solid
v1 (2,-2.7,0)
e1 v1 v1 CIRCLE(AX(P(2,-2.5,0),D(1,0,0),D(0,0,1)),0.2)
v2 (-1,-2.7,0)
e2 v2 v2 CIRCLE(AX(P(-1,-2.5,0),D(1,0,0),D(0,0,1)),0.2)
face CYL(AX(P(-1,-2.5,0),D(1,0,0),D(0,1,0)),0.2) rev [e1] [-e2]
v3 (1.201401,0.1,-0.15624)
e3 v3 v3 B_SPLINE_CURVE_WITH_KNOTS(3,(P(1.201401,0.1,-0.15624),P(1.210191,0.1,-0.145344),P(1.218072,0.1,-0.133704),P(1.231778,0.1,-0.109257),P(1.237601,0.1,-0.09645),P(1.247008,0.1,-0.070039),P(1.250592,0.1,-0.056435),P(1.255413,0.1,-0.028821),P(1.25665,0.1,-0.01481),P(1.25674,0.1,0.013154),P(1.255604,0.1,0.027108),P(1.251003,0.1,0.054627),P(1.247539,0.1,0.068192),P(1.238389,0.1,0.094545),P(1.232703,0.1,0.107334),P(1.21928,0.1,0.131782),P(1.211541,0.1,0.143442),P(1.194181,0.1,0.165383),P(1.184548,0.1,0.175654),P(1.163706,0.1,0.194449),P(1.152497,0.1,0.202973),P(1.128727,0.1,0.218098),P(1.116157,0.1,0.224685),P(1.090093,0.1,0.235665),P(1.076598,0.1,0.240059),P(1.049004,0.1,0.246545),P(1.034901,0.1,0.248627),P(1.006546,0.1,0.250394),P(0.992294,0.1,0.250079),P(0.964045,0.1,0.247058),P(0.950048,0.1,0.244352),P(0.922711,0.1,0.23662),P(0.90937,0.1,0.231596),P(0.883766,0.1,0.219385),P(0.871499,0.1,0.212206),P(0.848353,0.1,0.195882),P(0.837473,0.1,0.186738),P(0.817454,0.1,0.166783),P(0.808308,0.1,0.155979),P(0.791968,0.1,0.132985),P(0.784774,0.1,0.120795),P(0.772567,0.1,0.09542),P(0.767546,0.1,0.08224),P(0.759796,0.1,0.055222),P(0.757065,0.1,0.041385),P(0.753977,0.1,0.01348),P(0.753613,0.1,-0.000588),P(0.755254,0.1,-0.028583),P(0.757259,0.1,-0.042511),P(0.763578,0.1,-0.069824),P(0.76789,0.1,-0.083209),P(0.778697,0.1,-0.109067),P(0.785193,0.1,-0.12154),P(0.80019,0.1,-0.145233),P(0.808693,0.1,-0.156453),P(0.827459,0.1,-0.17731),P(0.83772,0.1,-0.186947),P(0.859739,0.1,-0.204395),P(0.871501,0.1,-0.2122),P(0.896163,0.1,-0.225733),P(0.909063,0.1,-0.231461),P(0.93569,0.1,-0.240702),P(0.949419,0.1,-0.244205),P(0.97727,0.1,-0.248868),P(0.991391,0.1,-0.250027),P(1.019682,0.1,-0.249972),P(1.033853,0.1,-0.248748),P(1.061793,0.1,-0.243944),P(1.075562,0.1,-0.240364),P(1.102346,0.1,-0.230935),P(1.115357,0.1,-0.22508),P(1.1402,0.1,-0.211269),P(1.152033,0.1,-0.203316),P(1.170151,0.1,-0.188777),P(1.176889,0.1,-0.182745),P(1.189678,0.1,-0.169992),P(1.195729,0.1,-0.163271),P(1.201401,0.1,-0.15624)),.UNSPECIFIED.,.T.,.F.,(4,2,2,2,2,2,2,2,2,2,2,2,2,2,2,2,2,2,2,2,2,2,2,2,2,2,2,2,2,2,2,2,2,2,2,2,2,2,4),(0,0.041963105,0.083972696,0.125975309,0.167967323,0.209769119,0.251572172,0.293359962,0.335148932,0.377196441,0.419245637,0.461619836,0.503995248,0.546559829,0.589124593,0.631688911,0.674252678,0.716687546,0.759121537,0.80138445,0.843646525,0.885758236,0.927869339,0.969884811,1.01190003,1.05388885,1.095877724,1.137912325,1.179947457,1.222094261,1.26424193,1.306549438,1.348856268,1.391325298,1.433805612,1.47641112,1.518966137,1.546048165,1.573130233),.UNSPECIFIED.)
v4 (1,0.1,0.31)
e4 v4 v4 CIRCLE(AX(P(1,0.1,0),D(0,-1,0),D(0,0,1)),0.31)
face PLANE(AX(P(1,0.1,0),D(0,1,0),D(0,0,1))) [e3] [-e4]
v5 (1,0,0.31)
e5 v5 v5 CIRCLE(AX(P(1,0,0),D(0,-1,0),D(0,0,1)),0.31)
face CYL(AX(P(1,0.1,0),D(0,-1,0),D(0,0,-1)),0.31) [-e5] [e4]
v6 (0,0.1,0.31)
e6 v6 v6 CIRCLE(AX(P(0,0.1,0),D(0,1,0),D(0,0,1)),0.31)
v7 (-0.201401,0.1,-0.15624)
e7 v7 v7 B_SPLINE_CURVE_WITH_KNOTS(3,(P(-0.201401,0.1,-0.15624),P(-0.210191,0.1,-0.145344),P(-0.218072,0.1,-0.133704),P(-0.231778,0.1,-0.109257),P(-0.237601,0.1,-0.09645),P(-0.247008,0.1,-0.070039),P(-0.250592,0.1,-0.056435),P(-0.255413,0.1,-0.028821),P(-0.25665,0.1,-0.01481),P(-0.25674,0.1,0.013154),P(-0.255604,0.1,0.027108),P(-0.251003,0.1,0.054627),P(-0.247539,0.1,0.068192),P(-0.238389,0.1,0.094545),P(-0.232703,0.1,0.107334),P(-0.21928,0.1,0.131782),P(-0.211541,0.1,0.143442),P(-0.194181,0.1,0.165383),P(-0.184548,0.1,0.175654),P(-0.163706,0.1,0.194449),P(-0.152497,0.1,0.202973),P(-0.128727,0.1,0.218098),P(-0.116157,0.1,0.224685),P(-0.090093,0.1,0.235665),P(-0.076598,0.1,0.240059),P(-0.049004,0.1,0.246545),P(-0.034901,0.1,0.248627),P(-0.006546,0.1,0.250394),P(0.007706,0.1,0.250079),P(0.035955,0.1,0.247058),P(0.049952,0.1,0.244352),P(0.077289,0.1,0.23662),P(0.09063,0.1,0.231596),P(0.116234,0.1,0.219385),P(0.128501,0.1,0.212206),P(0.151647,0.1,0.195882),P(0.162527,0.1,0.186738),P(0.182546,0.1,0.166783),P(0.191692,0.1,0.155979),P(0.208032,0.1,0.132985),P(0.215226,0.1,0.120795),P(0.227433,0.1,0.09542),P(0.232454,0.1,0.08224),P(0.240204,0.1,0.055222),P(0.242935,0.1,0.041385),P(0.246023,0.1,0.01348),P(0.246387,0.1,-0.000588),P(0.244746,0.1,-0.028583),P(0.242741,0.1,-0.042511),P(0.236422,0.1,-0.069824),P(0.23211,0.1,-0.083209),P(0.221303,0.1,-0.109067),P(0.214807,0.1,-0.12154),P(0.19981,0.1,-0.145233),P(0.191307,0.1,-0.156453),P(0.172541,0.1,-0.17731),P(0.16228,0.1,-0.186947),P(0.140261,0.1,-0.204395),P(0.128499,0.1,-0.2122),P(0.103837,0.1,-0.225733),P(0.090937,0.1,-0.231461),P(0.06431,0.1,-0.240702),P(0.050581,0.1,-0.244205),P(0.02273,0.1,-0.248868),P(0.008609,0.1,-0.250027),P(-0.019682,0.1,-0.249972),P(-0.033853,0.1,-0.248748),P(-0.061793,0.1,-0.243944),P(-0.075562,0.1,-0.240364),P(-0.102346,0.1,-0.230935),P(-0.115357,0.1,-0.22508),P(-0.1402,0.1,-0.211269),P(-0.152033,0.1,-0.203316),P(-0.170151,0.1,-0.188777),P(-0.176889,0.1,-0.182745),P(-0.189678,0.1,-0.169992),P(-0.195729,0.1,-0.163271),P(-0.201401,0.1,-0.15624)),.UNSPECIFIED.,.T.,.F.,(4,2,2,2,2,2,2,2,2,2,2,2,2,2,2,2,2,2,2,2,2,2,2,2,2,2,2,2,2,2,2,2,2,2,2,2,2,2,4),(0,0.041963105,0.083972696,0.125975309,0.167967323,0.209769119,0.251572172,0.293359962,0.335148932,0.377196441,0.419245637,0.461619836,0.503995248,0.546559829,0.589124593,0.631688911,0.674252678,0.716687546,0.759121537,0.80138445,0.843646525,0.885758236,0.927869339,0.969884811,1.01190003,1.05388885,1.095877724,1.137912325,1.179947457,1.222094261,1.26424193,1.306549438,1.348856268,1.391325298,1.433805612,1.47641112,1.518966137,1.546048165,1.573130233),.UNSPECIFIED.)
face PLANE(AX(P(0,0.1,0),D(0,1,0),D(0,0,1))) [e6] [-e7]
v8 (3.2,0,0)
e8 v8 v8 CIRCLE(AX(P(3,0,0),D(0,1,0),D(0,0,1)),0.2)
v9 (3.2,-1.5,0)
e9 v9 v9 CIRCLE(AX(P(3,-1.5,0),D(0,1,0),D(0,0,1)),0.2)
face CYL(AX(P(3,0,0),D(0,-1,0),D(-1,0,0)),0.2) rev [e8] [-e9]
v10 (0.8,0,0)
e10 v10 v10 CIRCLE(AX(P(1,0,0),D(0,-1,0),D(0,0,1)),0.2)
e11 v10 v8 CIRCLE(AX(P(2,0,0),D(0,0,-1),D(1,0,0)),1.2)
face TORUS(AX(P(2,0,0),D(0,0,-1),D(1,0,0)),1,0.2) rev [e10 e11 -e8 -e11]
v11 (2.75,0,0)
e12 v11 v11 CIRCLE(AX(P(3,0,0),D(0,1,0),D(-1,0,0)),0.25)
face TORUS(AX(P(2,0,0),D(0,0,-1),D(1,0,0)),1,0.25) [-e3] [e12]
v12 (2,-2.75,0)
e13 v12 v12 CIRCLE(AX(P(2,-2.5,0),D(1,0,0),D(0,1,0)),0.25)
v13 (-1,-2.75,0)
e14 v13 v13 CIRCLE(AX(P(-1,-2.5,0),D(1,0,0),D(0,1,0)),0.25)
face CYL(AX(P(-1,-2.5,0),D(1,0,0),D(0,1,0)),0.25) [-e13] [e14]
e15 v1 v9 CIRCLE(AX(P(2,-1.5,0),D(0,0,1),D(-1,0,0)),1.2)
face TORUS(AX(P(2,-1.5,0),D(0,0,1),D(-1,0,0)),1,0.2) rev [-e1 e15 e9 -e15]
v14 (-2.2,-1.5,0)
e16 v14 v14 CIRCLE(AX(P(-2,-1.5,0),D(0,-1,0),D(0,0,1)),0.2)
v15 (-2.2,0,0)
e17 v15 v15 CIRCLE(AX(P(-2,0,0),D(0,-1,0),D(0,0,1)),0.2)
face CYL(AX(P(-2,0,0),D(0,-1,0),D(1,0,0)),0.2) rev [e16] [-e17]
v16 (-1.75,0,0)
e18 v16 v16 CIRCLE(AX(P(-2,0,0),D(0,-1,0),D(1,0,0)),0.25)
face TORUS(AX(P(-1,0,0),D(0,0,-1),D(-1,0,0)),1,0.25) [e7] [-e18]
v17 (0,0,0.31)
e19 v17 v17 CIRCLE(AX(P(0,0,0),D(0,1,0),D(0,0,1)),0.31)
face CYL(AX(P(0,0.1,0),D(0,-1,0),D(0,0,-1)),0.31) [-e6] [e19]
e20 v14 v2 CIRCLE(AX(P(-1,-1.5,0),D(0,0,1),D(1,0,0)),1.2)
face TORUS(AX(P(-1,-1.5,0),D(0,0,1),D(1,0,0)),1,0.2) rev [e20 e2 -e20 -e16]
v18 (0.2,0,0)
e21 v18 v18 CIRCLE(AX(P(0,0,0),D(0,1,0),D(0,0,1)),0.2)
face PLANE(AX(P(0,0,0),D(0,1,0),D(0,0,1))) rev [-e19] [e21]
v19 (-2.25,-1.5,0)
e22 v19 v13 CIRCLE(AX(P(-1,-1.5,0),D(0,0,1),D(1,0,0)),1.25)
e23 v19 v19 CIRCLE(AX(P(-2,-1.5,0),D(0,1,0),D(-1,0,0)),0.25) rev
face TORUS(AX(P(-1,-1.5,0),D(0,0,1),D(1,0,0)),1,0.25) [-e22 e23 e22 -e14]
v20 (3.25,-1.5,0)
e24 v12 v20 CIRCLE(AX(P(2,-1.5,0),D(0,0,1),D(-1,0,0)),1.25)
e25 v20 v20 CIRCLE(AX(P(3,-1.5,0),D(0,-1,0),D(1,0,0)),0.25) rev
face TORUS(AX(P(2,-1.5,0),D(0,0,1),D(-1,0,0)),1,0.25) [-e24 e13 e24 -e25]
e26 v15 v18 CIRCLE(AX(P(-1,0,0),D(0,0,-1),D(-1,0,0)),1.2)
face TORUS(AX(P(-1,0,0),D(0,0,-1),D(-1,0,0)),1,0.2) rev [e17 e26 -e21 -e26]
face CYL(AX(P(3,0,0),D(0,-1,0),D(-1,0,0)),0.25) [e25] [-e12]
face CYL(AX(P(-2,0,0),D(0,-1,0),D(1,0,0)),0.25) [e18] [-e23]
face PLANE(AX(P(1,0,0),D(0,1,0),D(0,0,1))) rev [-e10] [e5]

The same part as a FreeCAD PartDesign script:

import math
import FreeCAD as App
import Part
import Sketcher

V = App.Vector
Q = App.Units.Quantity

doc = App.newDocument("Part")
body = doc.addObject("PartDesign::Body", "Body")

# Sketch on XZ plane
sketch1 = body.newObject("Sketcher::SketchObject", "Sketch")
sketch1.AttachmentSupport = (doc.getObject("XZ_Plane"), [""])
sketch1.MapMode = "FlatFace"
sketch1.addGeometry(Part.Circle(V(0, 0, 0), V(0, 0, 1), 0.25), False)
sketch1.addGeometry(Part.Circle(V(0, 0, 0), V(0, 0, 1), 0.2), False)
sketch1.addConstraint(Sketcher.Constraint("Coincident", 0, 3, -1, 1))
sketch1.addConstraint(Sketcher.Constraint("Coincident", 1, 3, -1, 1))
sketch1.addConstraint(Sketcher.Constraint("Diameter", 0, Q("0.5 mm")))
sketch1.addConstraint(Sketcher.Constraint("Diameter", 1, Q("0.4 mm")))

# Sketch on XY plane
sketch2 = body.newObject("Sketcher::SketchObject", "Sketch001")
sketch2.AttachmentSupport = (doc.getObject("XY_Plane"), [""])
sketch2.MapMode = "FlatFace"
sketch2.addGeometry(Part.LineSegment(V(0.5, -2.5, 0), V(-1, -2.5, 0)), False)
sketch2.addGeometry(Part.ArcOfCircle(Part.Circle(V(-1, -1.5, 0), V(0, 0, 1), 1), math.radians(-180), math.radians(-90)), False)
sketch2.addGeometry(Part.LineSegment(V(-2, -1.5, 0), V(-2, 0, 0)), False)
sketch2.addGeometry(Part.ArcOfCircle(Part.Circle(V(-1, 0, 0), V(0, 0, 1), 1), math.radians(0), math.radians(180)), False)
sketch2.addConstraint(Sketcher.Constraint("Tangent", 0, 2, 1, 2))
sketch2.addConstraint(Sketcher.Constraint("Tangent", 1, 1, 2, 1))
sketch2.addConstraint(Sketcher.Constraint("Tangent", 2, 2, 3, 2))
sketch2.addConstraint(Sketcher.Constraint("Horizontal", 0))
sketch2.addConstraint(Sketcher.Constraint("Vertical", 2))
sketch2.addConstraint(Sketcher.Constraint("Coincident", 3, 1, -1, 1))
sketch2.addConstraint(Sketcher.Constraint("Equal", 1, 3))
sketch2.addConstraint(Sketcher.Constraint("PointOnObject", 3, 3, -1))
sketch2.addConstraint(Sketcher.Constraint("Equal", 0, 2))
sketch2.addConstraint(Sketcher.Constraint("Radius", 1, Q("1 mm")))
sketch2.addConstraint(Sketcher.Constraint("DistanceX", 0, 2, 0, 1, Q("1.5 mm")))
doc.recompute()

additivepipe = body.newObject("PartDesign::AdditivePipe", "AdditivePipe")
additivepipe.Profile = sketch1
additivepipe.Spine = (sketch2, ["Edge1", "Edge2", "Edge3", "Edge4"])

# Sketch on XZ plane
sketch3 = body.newObject("Sketcher::SketchObject", "Sketch002")
sketch3.AttachmentSupport = (doc.getObject("XZ_Plane"), [""])
sketch3.MapMode = "FlatFace"
sketch3.addGeometry(Part.Circle(V(0, 0, 0), V(0, 0, 1), 0.31), False)
sketch3.addGeometry(Part.Circle(V(0, 0, 0), V(0, 0, 1), 0.21), False)
sketch3.addConstraint(Sketcher.Constraint("Coincident", 0, 3, -1, 1))
sketch3.addConstraint(Sketcher.Constraint("Coincident", 1, 3, -1, 1))
sketch3.addConstraint(Sketcher.Constraint("Diameter", 0, Q("0.62 mm")))
sketch3.addConstraint(Sketcher.Constraint("Diameter", 1, Q("0.42 mm")))

# Sketch on XY plane
sketch4 = body.newObject("Sketcher::SketchObject", "Sketch003")
sketch4.AttachmentSupport = (doc.getObject("XY_Plane"), [""])
sketch4.MapMode = "FlatFace"
sketch4.addGeometry(Part.LineSegment(V(0, 0, 0), V(0, 0.1, 0)), False)
sketch4.addConstraint(Sketcher.Constraint("Vertical", 0))
sketch4.addConstraint(Sketcher.Constraint("Coincident", 0, 1, -1, 1))
sketch4.addConstraint(Sketcher.Constraint("DistanceY", 0, 1, 0, 2, Q("0.1 mm")))
doc.recompute()

additivepipe2 = body.newObject("PartDesign::AdditivePipe", "AdditivePipe001")
additivepipe2.Profile = sketch3
additivepipe2.Spine = (sketch4, ["Edge1"])
body2 = doc.addObject("PartDesign::Body", "Body001")
doc.recompute()

body2.BaseFeature = body
doc.recompute()

mirroring = doc.addObject("Part::Mirroring", "Mirroring")
mirroring.Source = body
mirroring.Base = V(0.5, -2.5, 0)
mirroring.Normal = V(1, 0, 0)
body3 = doc.addObject("PartDesign::Body", "Body002")
body3.BaseFeature = mirroring
boolean = body2.newObject("PartDesign::Boolean", "Boolean")
boolean.Type = "Fuse"
boolean.addObjects([body3])
doc.recompute()
mirroring.Visibility = False

doc.recompute()
